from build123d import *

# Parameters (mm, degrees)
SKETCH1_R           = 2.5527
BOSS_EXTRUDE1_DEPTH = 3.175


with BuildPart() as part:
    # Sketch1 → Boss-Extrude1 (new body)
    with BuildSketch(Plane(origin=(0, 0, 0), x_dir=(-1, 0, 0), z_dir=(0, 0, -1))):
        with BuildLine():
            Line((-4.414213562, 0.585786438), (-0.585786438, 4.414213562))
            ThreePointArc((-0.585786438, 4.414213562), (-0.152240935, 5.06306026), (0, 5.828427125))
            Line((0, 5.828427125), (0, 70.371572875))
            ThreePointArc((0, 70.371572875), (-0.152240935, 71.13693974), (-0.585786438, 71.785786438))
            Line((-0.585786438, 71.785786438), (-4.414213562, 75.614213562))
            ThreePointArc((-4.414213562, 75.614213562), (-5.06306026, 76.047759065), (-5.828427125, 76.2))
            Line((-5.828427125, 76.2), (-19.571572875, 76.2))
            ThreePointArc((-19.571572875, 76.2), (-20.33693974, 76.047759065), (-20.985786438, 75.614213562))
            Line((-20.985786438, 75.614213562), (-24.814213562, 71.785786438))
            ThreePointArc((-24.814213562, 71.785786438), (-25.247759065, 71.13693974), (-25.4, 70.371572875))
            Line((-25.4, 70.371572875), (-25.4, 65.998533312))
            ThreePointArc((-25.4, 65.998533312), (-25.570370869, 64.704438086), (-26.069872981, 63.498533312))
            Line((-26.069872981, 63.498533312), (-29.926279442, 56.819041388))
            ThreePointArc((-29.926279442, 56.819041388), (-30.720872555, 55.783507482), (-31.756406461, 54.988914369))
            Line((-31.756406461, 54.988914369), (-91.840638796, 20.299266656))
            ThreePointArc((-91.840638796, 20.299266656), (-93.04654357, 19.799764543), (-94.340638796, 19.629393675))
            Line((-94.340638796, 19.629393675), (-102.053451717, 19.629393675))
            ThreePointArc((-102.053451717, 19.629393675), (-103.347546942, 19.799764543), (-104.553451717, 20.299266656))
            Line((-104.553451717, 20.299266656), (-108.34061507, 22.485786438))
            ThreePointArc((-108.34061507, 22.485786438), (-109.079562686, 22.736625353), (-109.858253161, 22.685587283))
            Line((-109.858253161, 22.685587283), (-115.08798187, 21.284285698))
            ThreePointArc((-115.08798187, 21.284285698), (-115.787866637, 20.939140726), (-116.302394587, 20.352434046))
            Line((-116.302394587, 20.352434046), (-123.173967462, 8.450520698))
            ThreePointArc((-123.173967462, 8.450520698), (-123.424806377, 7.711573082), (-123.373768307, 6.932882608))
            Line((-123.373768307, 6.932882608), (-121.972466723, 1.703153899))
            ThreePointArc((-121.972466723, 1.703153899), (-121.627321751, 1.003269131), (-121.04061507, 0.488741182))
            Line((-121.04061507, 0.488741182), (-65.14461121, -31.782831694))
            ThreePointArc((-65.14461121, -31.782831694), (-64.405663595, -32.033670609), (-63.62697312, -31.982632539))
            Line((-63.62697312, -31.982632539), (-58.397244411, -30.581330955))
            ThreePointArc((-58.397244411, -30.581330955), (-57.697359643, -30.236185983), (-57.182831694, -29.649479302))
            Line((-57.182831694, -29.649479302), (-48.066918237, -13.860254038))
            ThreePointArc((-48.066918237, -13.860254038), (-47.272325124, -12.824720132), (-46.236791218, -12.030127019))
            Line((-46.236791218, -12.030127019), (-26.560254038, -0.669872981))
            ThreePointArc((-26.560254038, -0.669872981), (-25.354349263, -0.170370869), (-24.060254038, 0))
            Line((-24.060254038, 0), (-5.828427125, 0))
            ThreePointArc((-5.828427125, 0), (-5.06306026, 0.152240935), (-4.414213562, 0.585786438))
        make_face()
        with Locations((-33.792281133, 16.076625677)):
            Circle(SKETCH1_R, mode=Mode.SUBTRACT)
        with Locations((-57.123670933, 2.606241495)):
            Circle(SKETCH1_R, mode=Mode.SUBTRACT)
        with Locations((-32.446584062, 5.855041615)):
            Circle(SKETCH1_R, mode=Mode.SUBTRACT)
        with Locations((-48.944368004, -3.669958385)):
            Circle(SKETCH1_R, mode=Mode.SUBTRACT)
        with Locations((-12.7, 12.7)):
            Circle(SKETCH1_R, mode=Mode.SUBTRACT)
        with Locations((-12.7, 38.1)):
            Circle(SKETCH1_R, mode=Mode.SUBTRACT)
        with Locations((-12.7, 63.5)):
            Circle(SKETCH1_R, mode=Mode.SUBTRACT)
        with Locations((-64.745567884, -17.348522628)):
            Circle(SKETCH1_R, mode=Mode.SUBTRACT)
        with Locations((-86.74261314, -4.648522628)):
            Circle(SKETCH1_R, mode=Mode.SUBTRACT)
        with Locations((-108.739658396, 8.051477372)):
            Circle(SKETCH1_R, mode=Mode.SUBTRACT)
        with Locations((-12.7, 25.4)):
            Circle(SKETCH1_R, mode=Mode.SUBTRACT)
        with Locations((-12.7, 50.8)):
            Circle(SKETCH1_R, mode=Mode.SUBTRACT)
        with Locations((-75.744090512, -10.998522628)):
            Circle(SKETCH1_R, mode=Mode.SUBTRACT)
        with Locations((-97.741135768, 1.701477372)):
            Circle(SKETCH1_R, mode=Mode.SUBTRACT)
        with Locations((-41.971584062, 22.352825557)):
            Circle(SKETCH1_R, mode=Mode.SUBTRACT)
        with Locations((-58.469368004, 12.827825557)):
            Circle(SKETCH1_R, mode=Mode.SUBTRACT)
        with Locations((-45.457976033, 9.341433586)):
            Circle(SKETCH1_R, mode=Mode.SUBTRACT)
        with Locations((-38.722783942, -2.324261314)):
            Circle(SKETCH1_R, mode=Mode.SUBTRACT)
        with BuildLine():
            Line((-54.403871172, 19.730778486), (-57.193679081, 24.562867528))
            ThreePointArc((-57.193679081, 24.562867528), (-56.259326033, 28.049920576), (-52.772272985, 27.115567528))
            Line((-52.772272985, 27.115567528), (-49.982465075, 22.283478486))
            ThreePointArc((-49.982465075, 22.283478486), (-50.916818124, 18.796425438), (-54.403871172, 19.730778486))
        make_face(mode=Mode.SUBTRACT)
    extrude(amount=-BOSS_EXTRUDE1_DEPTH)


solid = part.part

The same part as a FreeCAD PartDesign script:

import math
import FreeCAD as App
import Part
import Sketcher
Q = App.Units.Quantity

doc = App.newDocument("Part")
params = doc.addObject("Spreadsheet::Sheet", "Params")
for row, (alias, value) in enumerate([
    ("sketch1_radius", "2 mm"),
    ("sketch1_radius2", "5 mm"),
    ("pad1_length", "3.175 mm"),
], start=1):
    params.set(f"A{row}", alias)
    params.set(f"B{row}", "=" + value)
    params.setAlias(f"B{row}", alias)

body = doc.addObject("PartDesign::Body", "Body")

# Sketch on XY plane
sketch1 = body.newObject("Sketcher::SketchObject", "Sketch")
sketch1.AttachmentSupport = (doc.getObject("XY_Plane"), [""])
sketch1.MapMode = "FlatFace"
sketch1.addGeometry(Part.LineSegment(App.Vector(4.4, 0.6, 0), App.Vector(0.6, 4.4, 0)), False)
sketch1.addGeometry(Part.ArcOfCircle(Part.Circle(App.Vector(2, 5.8, 0), App.Vector(0, 0, 1), 2), math.radians(180), math.radians(225)), False)
sketch1.addGeometry(Part.LineSegment(App.Vector(0, 5.8, 0), App.Vector(0, 70.4, 0)), False)
sketch1.addGeometry(Part.ArcOfCircle(Part.Circle(App.Vector(2, 70.4, 0), App.Vector(0, 0, 1), 2), math.radians(135), math.radians(180)), False)
sketch1.addGeometry(Part.LineSegment(App.Vector(0.6, 71.8, 0), App.Vector(4.4, 75.6, 0)), False)
sketch1.addGeometry(Part.ArcOfCircle(Part.Circle(App.Vector(5.8, 74.2, 0), App.Vector(0, 0, 1), 2), math.radians(90), math.radians(135)), False)
sketch1.addGeometry(Part.LineSegment(App.Vector(5.8, 76.2, 0), App.Vector(19.6, 76.2, 0)), False)
sketch1.addGeometry(Part.ArcOfCircle(Part.Circle(App.Vector(19.6, 74.2, 0), App.Vector(0, 0, 1), 2), math.radians(45), math.radians(90)), False)
sketch1.addGeometry(Part.LineSegment(App.Vector(21, 75.6, 0), App.Vector(24.8, 71.8, 0)), False)
sketch1.addGeometry(Part.ArcOfCircle(Part.Circle(App.Vector(23.4, 70.4, 0), App.Vector(0, 0, 1), 2), math.radians(0), math.radians(45)), False)
sketch1.addGeometry(Part.LineSegment(App.Vector(25.4, 70.4, 0), App.Vector(25.4, 66, 0)), False)
sketch1.addGeometry(Part.ArcOfCircle(Part.Circle(App.Vector(30.4, 66, 0), App.Vector(0, 0, 1), 5), math.radians(-180), math.radians(-150)), False)
sketch1.addGeometry(Part.LineSegment(App.Vector(26.1, 63.5, 0), App.Vector(29.9, 56.8, 0)), False)
sketch1.addGeometry(Part.ArcOfCircle(Part.Circle(App.Vector(34.3, 59.3, 0), App.Vector(0, 0, 1), 5), math.radians(-150), math.radians(-120)), False)
sketch1.addGeometry(Part.LineSegment(App.Vector(31.8, 55, 0), App.Vector(91.8, 20.3, 0)), False)
sketch1.addGeometry(Part.ArcOfCircle(Part.Circle(App.Vector(94.3, 24.6, 0), App.Vector(0, 0, 1), 5), math.radians(-120), math.radians(-90)), False)
sketch1.addGeometry(Part.LineSegment(App.Vector(94.3, 19.6, 0), App.Vector(102.1, 19.6, 0)), False)
sketch1.addGeometry(Part.ArcOfCircle(Part.Circle(App.Vector(102.1, 24.6, 0), App.Vector(0, 0, 1), 5), math.radians(-90), math.radians(-60)), False)
sketch1.addGeometry(Part.LineSegment(App.Vector(104.6, 20.3, 0), App.Vector(108.3, 22.5, 0)), False)
sketch1.addGeometry(Part.ArcOfCircle(Part.Circle(App.Vector(109.3, 20.8, 0), App.Vector(0, 0, 1), 2), math.radians(75), math.radians(120)), False)
sketch1.addGeometry(Part.LineSegment(App.Vector(109.9, 22.7, 0), App.Vector(115.1, 21.3, 0)), False)
sketch1.addGeometry(Part.ArcOfCircle(Part.Circle(App.Vector(114.6, 19.4, 0), App.Vector(0, 0, 1), 2), math.radians(30), math.radians(75)), False)
sketch1.addGeometry(Part.LineSegment(App.Vector(116.3, 20.4, 0), App.Vector(123.2, 8.5, 0)), False)
sketch1.addGeometry(Part.ArcOfCircle(Part.Circle(App.Vector(121.4, 7.5, 0), App.Vector(0, 0, 1), 2), math.radians(-15), math.radians(30)), False)
sketch1.addGeometry(Part.LineSegment(App.Vector(123.4, 6.9, 0), App.Vector(122, 1.7, 0)), False)
sketch1.addGeometry(Part.ArcOfCircle(Part.Circle(App.Vector(120, 2.2, 0), App.Vector(0, 0, 1), 2), math.radians(-60), math.radians(-15)), False)
sketch1.addGeometry(Part.LineSegment(App.Vector(121, 0.5, 0), App.Vector(65.1, -31.8, 0)), False)
sketch1.addGeometry(Part.ArcOfCircle(Part.Circle(App.Vector(64.1, -30.1, 0), App.Vector(0, 0, 1), 2), math.radians(-105), math.radians(-60)), False)
sketch1.addGeometry(Part.LineSegment(App.Vector(63.6, -32, 0), App.Vector(58.4, -30.6, 0)), False)
sketch1.addGeometry(Part.ArcOfCircle(Part.Circle(App.Vector(58.9, -28.6, 0), App.Vector(0, 0, 1), 2), math.radians(-150), math.radians(-105)), False)
sketch1.addGeometry(Part.LineSegment(App.Vector(57.2, -29.6, 0), App.Vector(48.1, -13.9, 0)), False)
sketch1.addGeometry(Part.ArcOfCircle(Part.Circle(App.Vector(43.7, -16.4, 0), App.Vector(0, 0, 1), 5), math.radians(30), math.radians(60)), False)
sketch1.addGeometry(Part.LineSegment(App.Vector(46.2, -12, 0), App.Vector(26.6, -0.7, 0)), False)
sketch1.addGeometry(Part.ArcOfCircle(Part.Circle(App.Vector(24.1, -5, 0), App.Vector(0, 0, 1), 5), math.radians(60), math.radians(90)), False)
sketch1.addGeometry(Part.LineSegment(App.Vector(24.1, 0, 0), App.Vector(5.8, 0, 0)), False)
sketch1.addGeometry(Part.ArcOfCircle(Part.Circle(App.Vector(5.8, 2, 0), App.Vector(0, 0, 1), 2), math.radians(-135), math.radians(-90)), False)
sketch1.addGeometry(Part.Circle(App.Vector(86.7, -4.6, 0), App.Vector(0, 0, 1), 2.6), False)
sketch1.addGeometry(Part.Circle(App.Vector(75.7, -11, 0), App.Vector(0, 0, 1), 2.6), False)
sketch1.addGeometry(Part.Circle(App.Vector(64.7, -17.3, 0), App.Vector(0, 0, 1), 2.6), False)
sketch1.addGeometry(Part.Circle(App.Vector(108.7, 8.1, 0), App.Vector(0, 0, 1), 2.6), False)
sketch1.addGeometry(Part.Circle(App.Vector(97.7, 1.7, 0), App.Vector(0, 0, 1), 2.6), False)
sketch1.addGeometry(Part.Circle(App.Vector(48.9, -3.7, 0), App.Vector(0, 0, 1), 2.6), False)
sketch1.addGeometry(Part.Circle(App.Vector(38.7, -2.3, 0), App.Vector(0, 0, 1), 2.6), False)
sketch1.addGeometry(Part.Circle(App.Vector(57.1, 2.6, 0), App.Vector(0, 0, 1), 2.6), False)
sketch1.addGeometry(Part.Circle(App.Vector(45.5, 9.3, 0), App.Vector(0, 0, 1), 2.6), False)
sketch1.addGeometry(Part.Circle(App.Vector(58.5, 12.8, 0), App.Vector(0, 0, 1), 2.6), False)
sketch1.addGeometry(Part.Circle(App.Vector(42, 22.4, 0), App.Vector(0, 0, 1), 2.6), False)
sketch1.addGeometry(Part.Circle(App.Vector(32.4, 5.9, 0), App.Vector(0, 0, 1), 2.6), False)
sketch1.addGeometry(Part.Circle(App.Vector(33.8, 16.1, 0), App.Vector(0, 0, 1), 2.6), False)
sketch1.addGeometry(Part.Circle(App.Vector(12.7, 12.7, 0), App.Vector(0, 0, 1), 2.6), False)
sketch1.addGeometry(Part.ArcOfCircle(Part.Circle(App.Vector(52.2, 21, 0), App.Vector(0, 0, 1), 2.6), math.radians(150), math.radians(330)), False)
sketch1.addGeometry(Part.LineSegment(App.Vector(54.4, 19.7, 0), App.Vector(57.2, 24.6, 0)), False)
sketch1.addGeometry(Part.ArcOfCircle(Part.Circle(App.Vector(55, 25.8, 0), App.Vector(0, 0, 1), 2.6), math.radians(-30), math.radians(150)), False)
sketch1.addGeometry(Part.LineSegment(App.Vector(52.8, 27.1, 0), App.Vector(50, 22.3, 0)), False)
sketch1.addGeometry(Part.Circle(App.Vector(12.7, 25.4, 0), App.Vector(0, 0, 1), 2.6), False)
sketch1.addGeometry(Part.Circle(App.Vector(12.7, 38.1, 0), App.Vector(0, 0, 1), 2.6), False)
sketch1.addGeometry(Part.Circle(App.Vector(12.7, 50.8, 0), App.Vector(0, 0, 1), 2.6), False)
sketch1.addGeometry(Part.Circle(App.Vector(12.7, 63.5, 0), App.Vector(0, 0, 1), 2.6), False)
sketch1.addConstraint(Sketcher.Constraint("Tangent", 0, 2, 1, 2))
sketch1.addConstraint(Sketcher.Constraint("Tangent", 1, 1, 2, 1))
sketch1.addConstraint(Sketcher.Constraint("Tangent", 2, 2, 3, 2))
sketch1.addConstraint(Sketcher.Constraint("Tangent", 3, 1, 4, 1))
sketch1.addConstraint(Sketcher.Constraint("Tangent", 4, 2, 5, 2))
sketch1.addConstraint(Sketcher.Constraint("Tangent", 5, 1, 6, 1))
sketch1.addConstraint(Sketcher.Constraint("Tangent", 6, 2, 7, 2))
sketch1.addConstraint(Sketcher.Constraint("Tangent", 7, 1, 8, 1))
sketch1.addConstraint(Sketcher.Constraint("Tangent", 8, 2, 9, 2))
sketch1.addConstraint(Sketcher.Constraint("Tangent", 9, 1, 10, 1))
sketch1.addConstraint(Sketcher.Constraint("Tangent", 10, 2, 11, 1))
sketch1.addConstraint(Sketcher.Constraint("Tangent", 11, 2, 12, 1))
sketch1.addConstraint(Sketcher.Constraint("Tangent", 12, 2, 13, 1))
sketch1.addConstraint(Sketcher.Constraint("Tangent", 13, 2, 14, 1))
sketch1.addConstraint(Sketcher.Constraint("Tangent", 14, 2, 15, 1))
sketch1.addConstraint(Sketcher.Constraint("Tangent", 15, 2, 16, 1))
sketch1.addConstraint(Sketcher.Constraint("Tangent", 16, 2, 17, 1))
sketch1.addConstraint(Sketcher.Constraint("Tangent", 17, 2, 18, 1))
sketch1.addConstraint(Sketcher.Constraint("Tangent", 18, 2, 19, 2))
sketch1.addConstraint(Sketcher.Constraint("Tangent", 19, 1, 20, 1))
sketch1.addConstraint(Sketcher.Constraint("Tangent", 20, 2, 21, 2))
sketch1.addConstraint(Sketcher.Constraint("Tangent", 21, 1, 22, 1))
sketch1.addConstraint(Sketcher.Constraint("Tangent", 22, 2, 23, 2))
sketch1.addConstraint(Sketcher.Constraint("Tangent", 23, 1, 24, 1))
sketch1.addConstraint(Sketcher.Constraint("Tangent", 24, 2, 25, 2))
sketch1.addConstraint(Sketcher.Constraint("Tangent", 25, 1, 26, 1))
sketch1.addConstraint(Sketcher.Constraint("Tangent", 26, 2, 27, 2))
sketch1.addConstraint(Sketcher.Constraint("Tangent", 27, 1, 28, 1))
sketch1.addConstraint(Sketcher.Constraint("Tangent", 28, 2, 29, 2))
sketch1.addConstraint(Sketcher.Constraint("Tangent", 29, 1, 30, 1))
sketch1.addConstraint(Sketcher.Constraint("Tangent", 30, 2, 31, 1))
sketch1.addConstraint(Sketcher.Constraint("Tangent", 31, 2, 32, 1))
sketch1.addConstraint(Sketcher.Constraint("Tangent", 32, 2, 33, 1))
sketch1.addConstraint(Sketcher.Constraint("Tangent", 33, 2, 34, 1))
sketch1.addConstraint(Sketcher.Constraint("Tangent", 34, 2, 35, 2))
sketch1.addConstraint(Sketcher.Constraint("Tangent", 35, 1, 0, 1))
sketch1.addConstraint(Sketcher.Constraint("Tangent", 50, 2, 51, 1))
sketch1.addConstraint(Sketcher.Constraint("Tangent", 51, 2, 52, 1))
sketch1.addConstraint(Sketcher.Constraint("Tangent", 52, 2, 53, 1))
sketch1.addConstraint(Sketcher.Constraint("Tangent", 53, 2, 50, 1))
sketch1.addConstraint(Sketcher.Constraint("Vertical", 2))
sketch1.addConstraint(Sketcher.Constraint("Horizontal", 6))
sketch1.addConstraint(Sketcher.Constraint("Vertical", 10))
sketch1.addConstraint(Sketcher.Constraint("Horizontal", 16))
sketch1.addConstraint(Sketcher.Constraint("Horizontal", 34))
sketch1.addConstraint(Sketcher.Constraint("Equal", 1, 3))
sketch1.addConstraint(Sketcher.Constraint("Equal", 3, 5))
sketch1.addConstraint(Sketcher.Constraint("Equal", 5, 7))
sketch1.addConstraint(Sketcher.Constraint("Equal", 7, 9))
sketch1.addConstraint(Sketcher.Constraint("Equal", 11, 13))
sketch1.addConstraint(Sketcher.Constraint("Equal", 13, 15))
sketch1.addConstraint(Sketcher.Constraint("Equal", 15, 17))
sketch1.addConstraint(Sketcher.Constraint("Equal", 9, 19))
sketch1.addConstraint(Sketcher.Constraint("Equal", 19, 21))
sketch1.addConstraint(Sketcher.Constraint("Equal", 21, 23))
sketch1.addConstraint(Sketcher.Constraint("Equal", 23, 25))
sketch1.addConstraint(Sketcher.Constraint("Equal", 25, 27))
sketch1.addConstraint(Sketcher.Constraint("Equal", 27, 29))
sketch1.addConstraint(Sketcher.Constraint("Equal", 17, 31))
sketch1.addConstraint(Sketcher.Constraint("Equal", 31, 33))
sketch1.addConstraint(Sketcher.Constraint("Equal", 29, 35))
sketch1.addConstraint(Sketcher.Constraint("Equal", 36, 37))
sketch1.addConstraint(Sketcher.Constraint("Equal", 37, 38))
sketch1.addConstraint(Sketcher.Constraint("Equal", 38, 39))
sketch1.addConstraint(Sketcher.Constraint("Equal", 39, 40))
sketch1.addConstraint(Sketcher.Constraint("Equal", 40, 41))
sketch1.addConstraint(Sketcher.Constraint("Equal", 41, 42))
sketch1.addConstraint(Sketcher.Constraint("Equal", 42, 43))
sketch1.addConstraint(Sketcher.Constraint("Equal", 43, 44))
sketch1.addConstraint(Sketcher.Constraint("Equal", 44, 45))
sketch1.addConstraint(Sketcher.Constraint("Equal", 45, 46))
sketch1.addConstraint(Sketcher.Constraint("Equal", 46, 47))
sketch1.addConstraint(Sketcher.Constraint("Equal", 47, 48))
sketch1.addConstraint(Sketcher.Constraint("Equal", 48, 49))
sketch1.addConstraint(Sketcher.Constraint("Equal", 49, 50))
sketch1.addConstraint(Sketcher.Constraint("Equal", 50, 52))
sketch1.addConstraint(Sketcher.Constraint("Equal", 52, 54))
sketch1.addConstraint(Sketcher.Constraint("Equal", 54, 55))
sketch1.addConstraint(Sketcher.Constraint("Equal", 55, 56))
sketch1.addConstraint(Sketcher.Constraint("Equal", 56, 57))
sketch1.addConstraint(Sketcher.Constraint("PointOnObject", 1, 1, -2))
sketch1.addConstraint(Sketcher.Constraint("PointOnObject", 33, 2, -1))
sketch1.addConstraint(Sketcher.Constraint("Perpendicular", 0, 4))
sketch1.addConstraint(Sketcher.Constraint("Perpendicular", 4, 8))
sketch1.addConstraint(Sketcher.Constraint("Perpendicular", 12, 18))
sketch1.addConstraint(Sketcher.Constraint("Perpendicular", 18, 22))
sketch1.addConstraint(Sketcher.Constraint("Perpendicular", 20, 24))
sketch1.addConstraint(Sketcher.Constraint("Perpendicular", 22, 26))
sketch1.addConstraint(Sketcher.Constraint("Perpendicular", 24, 28))
sketch1.addConstraint(Sketcher.Constraint("Perpendicular", 26, 30))
sketch1.addConstraint(Sketcher.Constraint("Parallel", 14, 32))
sketch1.addConstraint(Sketcher.Constraint("Perpendicular", 32, 51))
sketch1.addConstraint(Sketcher.Constraint("Horizontal", 3, 3, 9, 3))
sketch1.addConstraint(Sketcher.Constraint("Horizontal", 4, 2, 7, 1))
sketch1.addConstraint(Sketcher.Constraint("Horizontal", 14, 2, 17, 2))
sketch1.addConstraint(Sketcher.Constraint("Vertical", 5, 3, 35, 3))
sketch1.addConstraint(Sketcher.Constraint("Vertical", 49, 3, 54, 3))
sketch1.addConstraint(Sketcher.Constraint("Vertical", 54, 3, 55, 3))
sketch1.addConstraint(Sketcher.Constraint("Vertical", 55, 3, 56, 3))
sketch1.addConstraint(Sketcher.Constraint("Vertical", 56, 3, 57, 3))
sketch1.addConstraint(Sketcher.Constraint("Equal", 8, 20))
sketch1.addConstraint(Sketcher.Constraint("Equal", 20, 24))
sketch1.addConstraint(Sketcher.Constraint("Equal", 24, 28))
sketch1.addConstraint(Sketcher.Constraint("Radius", 1, Q("2 mm")))
sketch1.addConstraint(Sketcher.Constraint("Radius", 11, Q("5 mm")))
sketch1.addConstraint(Sketcher.Constraint("Angle", 12, Q("-60 deg")))
sketch1.addConstraint(Sketcher.Constraint("Angle", 20, Q("-15 deg")))
sketch1.addConstraint(Sketcher.Constraint("Diameter", 36, Q("5.1054 mm")))
sketch1.addConstraint(Sketcher.Constraint("DistanceY", -1, 1, 5, 3, Q("74.2 mm")))
sketch1.addConstraint(Sketcher.Constraint("DistanceX", -1, 1, 9, 3, Q("23.4 mm")))
sketch1.addConstraint(Sketcher.Constraint("DistanceX", -1, 1, 49, 3, Q("12.7 mm")))
sketch1.addConstraint(Sketcher.Constraint("DistanceY", -1, 1, 49, 3, Q("12.7 mm")))
sketch1.addConstraint(Sketcher.Constraint("DistanceY", -1, 1, 54, 3, Q("25.4 mm")))
sketch1.addConstraint(Sketcher.Constraint("DistanceY", -1, 1, 55, 3, Q("38.1 mm")))
sketch1.addConstraint(Sketcher.Constraint("DistanceY", -1, 1, 56, 3, Q("50.8 mm")))
sketch1.addConstraint(Sketcher.Constraint("DistanceY", -1, 1, 57, 3, Q("63.5 mm")))
sketch1.addConstraint(Sketcher.Constraint("DistanceY", 10, 2, 10, 1, Q("4.37304 mm")))
sketch1.addConstraint(Sketcher.Constraint("Distance", 18, Q("4.37304 mm")))
sketch1.addConstraint(Sketcher.Constraint("Distance", 32, Q("22.720508 mm")))
sketch1.addConstraint(Sketcher.Constraint("DistanceX", 6, 1, 6, 2, Q("13.743146 mm")))
sketch1.addConstraint(Sketcher.Constraint("DistanceX", 16, 1, 16, 2, Q("7.712813 mm")))
sketch1.addConstraint(Sketcher.Constraint("DistanceX", 34, 2, 34, 1, Q("18.231827 mm")))
sketch1.addConstraint(Sketcher.Constraint("DistanceY", -1, 1, 13, 3, Q("59.319041 mm")))
sketch1.addConstraint(Sketcher.Constraint("DistanceX", -1, 1, 15, 3, Q("94.340639 mm")))
sketch1.addConstraint(Sketcher.Constraint("DistanceY", -1, 1, 23, 3, Q("7.450521 mm")))
sketch1.addConstraint(Sketcher.Constraint("DistanceX", -1, 1, 37, 3, Q("75.744091 mm")))
sketch1.addConstraint(Sketcher.Constraint("DistanceX", -1, 1, 39, 3, Q("108.739658 mm")))
sketch1.addConstraint(Sketcher.Constraint("DistanceX", -1, 1, 41, 3, Q("48.944368 mm")))
sketch1.addConstraint(Sketcher.Constraint("DistanceY", 41, 3, -1, 1, Q("3.669958 mm")))
sketch1.addConstraint(Sketcher.Constraint("DistanceY", 42, 3, -1, 1, Q("2.324261 mm")))
sketch1.addConstraint(Sketcher.Constraint("DistanceX", -1, 1, 43, 3, Q("57.123671 mm")))
sketch1.addConstraint(Sketcher.Constraint("DistanceY", -1, 1, 43, 3, Q("2.606241 mm")))
sketch1.addConstraint(Sketcher.Constraint("DistanceX", -1, 1, 45, 3, Q("58.469368 mm")))
sketch1.addConstraint(Sketcher.Constraint("DistanceY", -1, 1, 47, 3, Q("5.855042 mm")))
sketch1.addConstraint(Sketcher.Constraint("DistanceX", -1, 1, 48, 3, Q("33.792281 mm")))
sketch1.addConstraint(Sketcher.Constraint("DistanceX", -1, 1, 50, 3, Q("52.193168 mm")))
sketch1.addConstraint(Sketcher.Constraint("DistanceY", -1, 1, 50, 3, Q("21.007128 mm")))
sketch1.addConstraint(Sketcher.Constraint("DistanceX", -1, 1, 51, 2, Q("57.193679 mm")))
sketch1.addConstraint(Sketcher.Constraint("DistanceX", -1, 1, 36, 3, Q("86.742613 mm")))
sketch1.addConstraint(Sketcher.Constraint("DistanceY", 36, 3, -1, 1, Q("4.648523 mm")))
sketch1.addConstraint(Sketcher.Constraint("DistanceY", 37, 3, -1, 1, Q("10.998523 mm")))
sketch1.addConstraint(Sketcher.Constraint("DistanceX", -1, 1, 38, 3, Q("64.745568 mm")))
sketch1.addConstraint(Sketcher.Constraint("DistanceY", 38, 3, -1, 1, Q("17.348523 mm")))
sketch1.addConstraint(Sketcher.Constraint("DistanceY", -1, 1, 39, 3, Q("8.051477 mm")))
sketch1.addConstraint(Sketcher.Constraint("DistanceX", -1, 1, 40, 3, Q("97.741136 mm")))
sketch1.addConstraint(Sketcher.Constraint("DistanceY", -1, 1, 40, 3, Q("1.701477 mm")))
sketch1.addConstraint(Sketcher.Constraint("DistanceX", -1, 1, 42, 3, Q("38.722784 mm")))
sketch1.addConstraint(Sketcher.Constraint("DistanceX", -1, 1, 44, 3, Q("45.457976 mm")))
sketch1.addConstraint(Sketcher.Constraint("DistanceY", -1, 1, 44, 3, Q("9.341434 mm")))
sketch1.addConstraint(Sketcher.Constraint("DistanceY", -1, 1, 45, 3, Q("12.827826 mm")))
sketch1.addConstraint(Sketcher.Constraint("DistanceX", -1, 1, 46, 3, Q("41.971584 mm")))
sketch1.addConstraint(Sketcher.Constraint("DistanceY", -1, 1, 46, 3, Q("22.352826 mm")))
sketch1.addConstraint(Sketcher.Constraint("DistanceX", -1, 1, 47, 3, Q("32.446584 mm")))
sketch1.addConstraint(Sketcher.Constraint("DistanceY", -1, 1, 48, 3, Q("16.076626 mm")))
sketch1.setExpression("Constraints[103]", "Params.sketch1_radius")
sketch1.setExpression("Constraints[104]", "Params.sketch1_radius2")
pad1 = body.newObject("PartDesign::Pad", "Pad")
pad1.Profile = sketch1
pad1.setExpression("Length", "Params.pad1_length")

doc.recompute()
